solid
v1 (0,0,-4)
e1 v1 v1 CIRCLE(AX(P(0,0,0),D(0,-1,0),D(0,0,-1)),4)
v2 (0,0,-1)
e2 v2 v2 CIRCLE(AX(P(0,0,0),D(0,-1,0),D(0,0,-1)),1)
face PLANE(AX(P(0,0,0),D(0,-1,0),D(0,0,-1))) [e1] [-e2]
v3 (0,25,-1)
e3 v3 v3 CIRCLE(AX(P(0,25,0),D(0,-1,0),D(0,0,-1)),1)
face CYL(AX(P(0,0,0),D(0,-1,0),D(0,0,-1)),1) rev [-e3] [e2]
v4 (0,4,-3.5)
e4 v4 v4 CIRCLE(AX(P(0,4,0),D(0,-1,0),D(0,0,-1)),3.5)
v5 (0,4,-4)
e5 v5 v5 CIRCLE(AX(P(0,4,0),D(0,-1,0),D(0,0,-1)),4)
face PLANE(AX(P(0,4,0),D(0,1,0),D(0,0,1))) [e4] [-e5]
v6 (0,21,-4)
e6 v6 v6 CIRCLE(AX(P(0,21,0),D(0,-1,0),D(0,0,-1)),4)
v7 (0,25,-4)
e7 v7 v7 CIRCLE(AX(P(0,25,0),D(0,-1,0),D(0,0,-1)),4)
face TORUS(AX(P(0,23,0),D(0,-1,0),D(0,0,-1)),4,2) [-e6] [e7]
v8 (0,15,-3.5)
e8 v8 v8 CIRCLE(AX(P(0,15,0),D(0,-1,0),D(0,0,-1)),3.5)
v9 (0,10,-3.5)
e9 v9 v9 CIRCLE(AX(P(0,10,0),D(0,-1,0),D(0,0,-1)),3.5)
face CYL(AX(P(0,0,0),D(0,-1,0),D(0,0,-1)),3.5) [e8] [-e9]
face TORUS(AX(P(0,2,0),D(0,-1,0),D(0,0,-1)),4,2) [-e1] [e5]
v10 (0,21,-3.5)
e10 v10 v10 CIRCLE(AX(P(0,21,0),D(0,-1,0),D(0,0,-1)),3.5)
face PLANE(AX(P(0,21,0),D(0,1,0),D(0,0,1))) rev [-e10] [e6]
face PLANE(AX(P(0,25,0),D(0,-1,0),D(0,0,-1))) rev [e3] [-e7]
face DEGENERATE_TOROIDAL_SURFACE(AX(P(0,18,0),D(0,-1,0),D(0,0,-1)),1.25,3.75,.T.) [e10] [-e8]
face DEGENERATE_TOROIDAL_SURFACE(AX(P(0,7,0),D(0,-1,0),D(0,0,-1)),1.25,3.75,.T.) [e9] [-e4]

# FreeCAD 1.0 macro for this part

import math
import FreeCAD as App
import Part
import Sketcher
from FreeCAD import Vector

doc = App.newDocument("Part")
body = doc.addObject("PartDesign::Body", "Body")

sketch1 = body.newObject("Sketcher::SketchObject", "Sketch")
sketch1.AttachmentSupport = (doc.getObject("XY_Plane"), [""])
sketch1.MapMode = "FlatFace"
sketch1.addGeometry([
    Part.LineSegment(Vector(4, 25, 0), Vector(1, 25, 0)),
    Part.LineSegment(Vector(1, 25, 0), Vector(1, 0, 0)),
    Part.LineSegment(Vector(1, 0, 0), Vector(4, 0, 0)),
    Part.ArcOfCircle(Part.Circle(Vector(4, 2, 0), Vector(0, 0, 1), 2), math.radians(-90), math.radians(90)),
    Part.LineSegment(Vector(4, 4, 0), Vector(3.5, 4, 0)),
    Part.ArcOfCircle(Part.Circle(Vector(1.2, 7, 0), Vector(0, 0, 1), 3.8), math.radians(-53), math.radians(53)),
    Part.LineSegment(Vector(3.5, 10, 0), Vector(3.5, 15, 0)),
    Part.ArcOfCircle(Part.Circle(Vector(1.2, 18, 0), Vector(0, 0, 1), 3.8), math.radians(-53), math.radians(53)),
    Part.LineSegment(Vector(3.5, 21, 0), Vector(4, 21, 0)),
    Part.ArcOfCircle(Part.Circle(Vector(4, 23, 0), Vector(0, 0, 1), 2), math.radians(-90), math.radians(90)),
], False)
sketch1.addConstraint([
    Sketcher.Constraint("Coincident", 0, 2, 1, 1),
    Sketcher.Constraint("Coincident", 1, 2, 2, 1),
    Sketcher.Constraint("Tangent", 2, 2, 3, 1),
    Sketcher.Constraint("Tangent", 3, 2, 4, 1),
    Sketcher.Constraint("Coincident", 4, 2, 5, 1),
    Sketcher.Constraint("Coincident", 5, 2, 6, 1),
    Sketcher.Constraint("Coincident", 6, 2, 7, 1),
    Sketcher.Constraint("Coincident", 7, 2, 8, 1),
    Sketcher.Constraint("Tangent", 8, 2, 9, 1),
    Sketcher.Constraint("Tangent", 9, 2, 0, 1),
    Sketcher.Constraint("Horizontal", 0),
    Sketcher.Constraint("Vertical", 1),
    Sketcher.Constraint("Horizontal", 2),
    Sketcher.Constraint("Horizontal", 4),
    Sketcher.Constraint("Vertical", 6),
    Sketcher.Constraint("Horizontal", 8),
    Sketcher.Constraint("Equal", 5, 7),
    Sketcher.Constraint("Equal", 3, 9),
    Sketcher.Constraint("PointOnObject", 1, 2, -1),
    Sketcher.Constraint("Vertical", 5, 3, 7, 3),
    Sketcher.Constraint("Vertical", 3, 3, 9, 3),
    Sketcher.Constraint("Vertical", 4, 2, 5, 2),
    Sketcher.Constraint("Vertical", 6, 2, 7, 2),
    Sketcher.Constraint("Radius", 3, 2.0),
    Sketcher.Constraint("DistanceX", 0, 2, 0, 1, 3.0),
    Sketcher.Constraint("DistanceY", 1, 2, 1, 1, 25.0),
    Sketcher.Constraint("DistanceY", 6, 1, 6, 2, 5.0),
    Sketcher.Constraint("Radius", 5, 3.75),
    Sketcher.Constraint("DistanceX", 4, 2, 4, 1, 0.5),
    Sketcher.Constraint("DistanceX", -1, 1, 3, 3, 4.0),
])
revolution = body.newObject("PartDesign::Revolution", "Revolution")
revolution.Profile = sketch1
revolution.ReferenceAxis = (sketch1, ["V_Axis"])
revolution.Angle = 360

doc.recompute()
